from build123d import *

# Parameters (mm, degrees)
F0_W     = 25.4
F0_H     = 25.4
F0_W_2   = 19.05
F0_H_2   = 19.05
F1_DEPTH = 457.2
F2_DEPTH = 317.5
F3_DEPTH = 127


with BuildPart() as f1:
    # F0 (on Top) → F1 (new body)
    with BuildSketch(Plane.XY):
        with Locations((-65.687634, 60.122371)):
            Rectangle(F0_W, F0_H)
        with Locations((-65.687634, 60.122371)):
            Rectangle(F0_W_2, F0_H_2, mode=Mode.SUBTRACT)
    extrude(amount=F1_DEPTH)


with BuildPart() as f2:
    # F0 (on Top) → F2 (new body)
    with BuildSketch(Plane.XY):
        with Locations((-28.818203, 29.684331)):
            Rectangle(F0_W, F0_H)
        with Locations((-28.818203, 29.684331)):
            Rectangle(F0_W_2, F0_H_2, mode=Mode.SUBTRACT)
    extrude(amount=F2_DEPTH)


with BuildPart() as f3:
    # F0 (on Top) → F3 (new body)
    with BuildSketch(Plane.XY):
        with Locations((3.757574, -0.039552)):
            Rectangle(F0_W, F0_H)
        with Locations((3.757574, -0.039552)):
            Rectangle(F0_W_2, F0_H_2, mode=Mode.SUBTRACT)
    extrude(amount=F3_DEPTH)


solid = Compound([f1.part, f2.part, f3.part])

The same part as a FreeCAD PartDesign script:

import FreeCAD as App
import Part
import Sketcher
Q = App.Units.Quantity


def add_polygon(sketch, points):
    """Adds a closed chain of lines whose ends are joined by coincident constraints."""
    first, n = sketch.GeometryCount, len(points)
    for a, b in zip(points, points[1:] + points[:1]):
        sketch.addGeometry(Part.LineSegment(App.Vector(*a, 0), App.Vector(*b, 0)), False)
    for i in range(n):
        sketch.addConstraint(Sketcher.Constraint("Coincident", first + i, 2, first + (i + 1) % n, 1))

doc = App.newDocument("Part")
body = doc.addObject("PartDesign::Body", "Body")

# Sketch on XY plane
sketch1 = body.newObject("Sketcher::SketchObject", "Sketch")
sketch1.AttachmentSupport = (doc.getObject("XY_Plane"), [""])
sketch1.MapMode = "FlatFace"
add_polygon(sketch1, [(-78, 73), (-78, 47), (-53, 47), (-53, 73)])  # lines 0-3
add_polygon(sketch1, [(-56, 51), (-75, 51), (-75, 70), (-56, 70)])  # lines 4-7
sketch1.addConstraint([
    Sketcher.Constraint("Vertical", 0),
    Sketcher.Constraint("Horizontal", 1),
    Sketcher.Constraint("Vertical", 2),
    Sketcher.Constraint("Horizontal", 3),
    Sketcher.Constraint("Horizontal", 4),
    Sketcher.Constraint("Vertical", 5),
    Sketcher.Constraint("Horizontal", 6),
    Sketcher.Constraint("Vertical", 7),
    Sketcher.Constraint("Equal", 3, 0),
    Sketcher.Constraint("Equal", 6, 5),
    Sketcher.Constraint("DistanceX", 1, 1, 1, 2, Q("1 in")),
    Sketcher.Constraint("DistanceX", 4, 2, 4, 1, Q("0.75 in")),
    Sketcher.Constraint("DistanceX", 0, 2, 4, 2, Q("0.125 in")),
    Sketcher.Constraint("DistanceY", 0, 2, 4, 2, Q("0.125 in")),
    Sketcher.Constraint("DistanceY", -1, 1, 0, 2, Q("47.422371 mm")),
    Sketcher.Constraint("DistanceX", 0, 2, -1, 1, Q("78.387634 mm")),
])
pad1 = body.newObject("PartDesign::Pad", "Pad")
pad1.Profile = sketch1
pad1.Length = Q("18 in")
body2 = doc.addObject("PartDesign::Body", "Body001")

# Sketch on XY plane
sketch2 = body2.newObject("Sketcher::SketchObject", "Sketch001")
sketch2.AttachmentSupport = (doc.getObject("XY_Plane001"), [""])
sketch2.MapMode = "FlatFace"
add_polygon(sketch2, [(-42, 42), (-42, 17), (-16, 17), (-16, 42)])  # lines 0-3
add_polygon(sketch2, [(-19, 20), (-38, 20), (-38, 39), (-19, 39)])  # lines 4-7
sketch2.addConstraint([
    Sketcher.Constraint("Vertical", 0),
    Sketcher.Constraint("Horizontal", 1),
    Sketcher.Constraint("Vertical", 2),
    Sketcher.Constraint("Horizontal", 3),
    Sketcher.Constraint("Horizontal", 4),
    Sketcher.Constraint("Vertical", 5),
    Sketcher.Constraint("Horizontal", 6),
    Sketcher.Constraint("Vertical", 7),
    Sketcher.Constraint("Equal", 3, 0),
    Sketcher.Constraint("Equal", 6, 5),
    Sketcher.Constraint("DistanceX", 1, 1, 1, 2, Q("1 in")),
    Sketcher.Constraint("DistanceX", 4, 2, 4, 1, Q("0.75 in")),
    Sketcher.Constraint("DistanceX", 0, 2, 4, 2, Q("0.125 in")),
    Sketcher.Constraint("DistanceY", 0, 2, 4, 2, Q("0.125 in")),
    Sketcher.Constraint("DistanceY", -1, 1, 0, 2, Q("16.984331 mm")),
    Sketcher.Constraint("DistanceX", 0, 2, -1, 1, Q("41.518203 mm")),
])
pad2 = body2.newObject("PartDesign::Pad", "Pad001")
pad2.Profile = sketch2
pad2.Length = Q("12.5 in")
body3 = doc.addObject("PartDesign::Body", "Body002")

# Sketch on XY plane
sketch3 = body3.newObject("Sketcher::SketchObject", "Sketch002")
sketch3.AttachmentSupport = (doc.getObject("XY_Plane002"), [""])
sketch3.MapMode = "FlatFace"
add_polygon(sketch3, [(-9, 13), (-9, -13), (16, -13), (16, 13)])  # lines 0-3
add_polygon(sketch3, [(13, -10), (-6, -10), (-6, 9), (13, 9)])  # lines 4-7
sketch3.addConstraint([
    Sketcher.Constraint("Vertical", 0),
    Sketcher.Constraint("Horizontal", 1),
    Sketcher.Constraint("Vertical", 2),
    Sketcher.Constraint("Horizontal", 3),
    Sketcher.Constraint("Horizontal", 4),
    Sketcher.Constraint("Vertical", 5),
    Sketcher.Constraint("Horizontal", 6),
    Sketcher.Constraint("Vertical", 7),
    Sketcher.Constraint("Equal", 3, 0),
    Sketcher.Constraint("Equal", 6, 5),
    Sketcher.Constraint("DistanceX", 1, 1, 1, 2, Q("1 in")),
    Sketcher.Constraint("DistanceX", 4, 2, 4, 1, Q("0.75 in")),
    Sketcher.Constraint("DistanceX", 0, 2, 4, 2, Q("0.125 in")),
    Sketcher.Constraint("DistanceY", 0, 2, 4, 2, Q("0.125 in")),
    Sketcher.Constraint("DistanceX", 0, 2, -1, 1, Q("8.942426 mm")),
    Sketcher.Constraint("DistanceY", 0, 2, -1, 1, Q("12.739552 mm")),
])
pad3 = body3.newObject("PartDesign::Pad", "Pad002")
pad3.Profile = sketch3
pad3.Length = Q("5 in")

doc.recompute()
